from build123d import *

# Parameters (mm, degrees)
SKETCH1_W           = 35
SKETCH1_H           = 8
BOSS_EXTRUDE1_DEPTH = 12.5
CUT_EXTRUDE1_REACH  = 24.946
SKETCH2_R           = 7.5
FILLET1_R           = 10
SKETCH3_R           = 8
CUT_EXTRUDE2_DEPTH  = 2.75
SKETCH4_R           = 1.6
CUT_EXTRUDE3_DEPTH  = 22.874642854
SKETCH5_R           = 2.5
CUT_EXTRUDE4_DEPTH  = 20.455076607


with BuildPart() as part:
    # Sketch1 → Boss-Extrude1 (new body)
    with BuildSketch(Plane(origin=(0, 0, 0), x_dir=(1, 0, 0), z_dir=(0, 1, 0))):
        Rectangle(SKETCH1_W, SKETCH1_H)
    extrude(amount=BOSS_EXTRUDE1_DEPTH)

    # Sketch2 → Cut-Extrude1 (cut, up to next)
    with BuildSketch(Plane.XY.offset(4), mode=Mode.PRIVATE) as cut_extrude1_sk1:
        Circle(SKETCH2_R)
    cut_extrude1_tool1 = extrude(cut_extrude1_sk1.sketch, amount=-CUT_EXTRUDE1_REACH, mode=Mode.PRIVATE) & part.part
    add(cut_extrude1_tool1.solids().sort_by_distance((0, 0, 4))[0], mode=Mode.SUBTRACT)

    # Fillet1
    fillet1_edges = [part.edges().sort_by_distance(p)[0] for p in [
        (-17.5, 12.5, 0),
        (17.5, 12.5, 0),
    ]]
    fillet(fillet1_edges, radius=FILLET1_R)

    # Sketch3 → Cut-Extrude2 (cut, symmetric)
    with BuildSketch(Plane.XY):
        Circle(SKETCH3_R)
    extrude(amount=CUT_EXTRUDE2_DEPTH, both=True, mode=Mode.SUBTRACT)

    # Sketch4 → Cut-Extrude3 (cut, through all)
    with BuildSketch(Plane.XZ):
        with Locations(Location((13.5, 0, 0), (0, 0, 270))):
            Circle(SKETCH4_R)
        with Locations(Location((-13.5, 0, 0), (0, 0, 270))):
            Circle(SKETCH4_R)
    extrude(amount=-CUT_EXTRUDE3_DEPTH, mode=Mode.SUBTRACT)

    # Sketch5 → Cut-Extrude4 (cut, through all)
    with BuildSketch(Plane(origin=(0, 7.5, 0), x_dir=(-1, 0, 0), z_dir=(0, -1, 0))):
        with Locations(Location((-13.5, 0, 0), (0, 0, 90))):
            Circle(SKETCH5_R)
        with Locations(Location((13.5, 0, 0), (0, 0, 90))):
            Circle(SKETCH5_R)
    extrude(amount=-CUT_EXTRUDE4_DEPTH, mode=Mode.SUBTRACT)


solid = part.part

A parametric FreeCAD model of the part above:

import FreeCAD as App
import Part
import Sketcher


def edges_at(feature, points):
    """Names of the edges that pass closest to the given points."""
    edges = feature.Shape.Edges
    near = lambda p: min(range(len(edges)), key=lambda i: edges[i].distToShape(Part.Vertex(*p))[0])
    return sorted({f"Edge{near(p) + 1}" for p in points})


def add_polygon(sketch, points):
    """Adds a closed chain of lines whose ends are joined by coincident constraints."""
    first, n = sketch.GeometryCount, len(points)
    for a, b in zip(points, points[1:] + points[:1]):
        sketch.addGeometry(Part.LineSegment(App.Vector(*a, 0), App.Vector(*b, 0)), False)
    for i in range(n):
        sketch.addConstraint(Sketcher.Constraint("Coincident", first + i, 2, first + (i + 1) % n, 1))

doc = App.newDocument("Part")
body = doc.addObject("PartDesign::Body", "Body")

# Sketch on XZ plane
sketch1 = body.newObject("Sketcher::SketchObject", "Sketch")
sketch1.AttachmentSupport = (doc.getObject("XZ_Plane"), [""])
sketch1.MapMode = "FlatFace"
add_polygon(sketch1, [(-18, -4), (-18, 4), (18, 4), (18, -4)])  # lines 0-3
sketch1.addConstraint([
    Sketcher.Constraint("Vertical", 0),
    Sketcher.Constraint("Horizontal", 1),
    Sketcher.Constraint("Vertical", 2),
    Sketcher.Constraint("Horizontal", 3),
    Sketcher.Constraint("Symmetric", 0, 2, 2, 2, -1, 1),
    Sketcher.Constraint("DistanceX", 1, 1, 1, 2, 35.0),
    Sketcher.Constraint("DistanceY", 0, 1, 0, 2, 8.0),
])
pad1 = body.newObject("PartDesign::Pad", "Pad")
pad1.Profile = sketch1
pad1.Length = 12.5
pad1.Reversed = True

# Sketch on XY plane
sketch2 = body.newObject("Sketcher::SketchObject", "Sketch001")
sketch2.AttachmentSupport = (doc.getObject("XY_Plane"), [""])
sketch2.MapMode = "FlatFace"
sketch2.AttachmentOffset = App.Placement(App.Vector(0, 0, 4), App.Rotation())
sketch2.addGeometry(Part.Circle(App.Vector(0, 0, 0), App.Vector(0, 0, 1), 8), False)
sketch2.addConstraint([
    Sketcher.Constraint("Coincident", 0, 3, -1, 1),
    Sketcher.Constraint("Diameter", 0, 15.0),
])
pocket1 = body.newObject("PartDesign::Pocket", "Pocket")
pocket1.Profile = sketch2
pocket1.Type = "UpToFirst"
doc.recompute()

fillet = body.newObject("PartDesign::Fillet", "Fillet")
fillet.Base = (pocket1, edges_at(pocket1, [(-17.5, 12.5, 0), (17.5, 12.5, 0)]))
fillet.Radius = 10

# Sketch on XY plane
sketch3 = body.newObject("Sketcher::SketchObject", "Sketch002")
sketch3.AttachmentSupport = (doc.getObject("XY_Plane"), [""])
sketch3.MapMode = "FlatFace"
sketch3.addGeometry(Part.Circle(App.Vector(0, 0, 0), App.Vector(0, 0, 1), 8), False)
sketch3.addConstraint([
    Sketcher.Constraint("Coincident", 0, 3, -1, 1),
    Sketcher.Constraint("Diameter", 0, 16.0),
])
pocket2 = body.newObject("PartDesign::Pocket", "Pocket001")
pocket2.Profile = sketch3
pocket2.Length = 5.5
pocket2.Midplane = True

# Sketch on XZ plane
sketch4 = body.newObject("Sketcher::SketchObject", "Sketch003")
sketch4.AttachmentSupport = (doc.getObject("XZ_Plane"), [""])
sketch4.MapMode = "FlatFace"
sketch4.addGeometry([
    Part.Circle(App.Vector(13.5, 0, 0), App.Vector(0, 0, 1), 1.6),
    Part.Circle(App.Vector(-13.5, 0, 0), App.Vector(0, 0, 1), 1.6),
], False)
sketch4.addConstraint([
    Sketcher.Constraint("Equal", 0, 1),
    Sketcher.Constraint("Symmetric", 0, 3, 1, 3, -1, 1),
    Sketcher.Constraint("PointOnObject", 0, 3, -1),
    Sketcher.Constraint("Diameter", 0, 3.2),
    Sketcher.Constraint("DistanceX", 1, 3, 0, 3, 27.0),
])
pocket3 = body.newObject("PartDesign::Pocket", "Pocket002")
pocket3.Profile = sketch4
pocket3.Type = "ThroughAll"

# Sketch on XZ plane
sketch5 = body.newObject("Sketcher::SketchObject", "Sketch004")
sketch5.AttachmentSupport = (doc.getObject("XZ_Plane"), [""])
sketch5.MapMode = "FlatFace"
sketch5.AttachmentOffset = App.Placement(App.Vector(0, 0, -7.5), App.Rotation())
sketch5.addGeometry([
    Part.Circle(App.Vector(13.5, 0, 0), App.Vector(0, 0, 1), 2.5),
    Part.Circle(App.Vector(-13.5, 0, 0), App.Vector(0, 0, 1), 2.5),
], False)
sketch5.addConstraint([
    Sketcher.Constraint("Equal", 0, 1),
    Sketcher.Constraint("Symmetric", 0, 3, 1, 3, -1, 1),
    Sketcher.Constraint("PointOnObject", 0, 3, -1),
    Sketcher.Constraint("Diameter", 0, 5.0),
    Sketcher.Constraint("DistanceX", 1, 3, 0, 3, 27.0),
])
pocket4 = body.newObject("PartDesign::Pocket", "Pocket003")
pocket4.Profile = sketch5
pocket4.Type = "ThroughAll"

doc.recompute()
